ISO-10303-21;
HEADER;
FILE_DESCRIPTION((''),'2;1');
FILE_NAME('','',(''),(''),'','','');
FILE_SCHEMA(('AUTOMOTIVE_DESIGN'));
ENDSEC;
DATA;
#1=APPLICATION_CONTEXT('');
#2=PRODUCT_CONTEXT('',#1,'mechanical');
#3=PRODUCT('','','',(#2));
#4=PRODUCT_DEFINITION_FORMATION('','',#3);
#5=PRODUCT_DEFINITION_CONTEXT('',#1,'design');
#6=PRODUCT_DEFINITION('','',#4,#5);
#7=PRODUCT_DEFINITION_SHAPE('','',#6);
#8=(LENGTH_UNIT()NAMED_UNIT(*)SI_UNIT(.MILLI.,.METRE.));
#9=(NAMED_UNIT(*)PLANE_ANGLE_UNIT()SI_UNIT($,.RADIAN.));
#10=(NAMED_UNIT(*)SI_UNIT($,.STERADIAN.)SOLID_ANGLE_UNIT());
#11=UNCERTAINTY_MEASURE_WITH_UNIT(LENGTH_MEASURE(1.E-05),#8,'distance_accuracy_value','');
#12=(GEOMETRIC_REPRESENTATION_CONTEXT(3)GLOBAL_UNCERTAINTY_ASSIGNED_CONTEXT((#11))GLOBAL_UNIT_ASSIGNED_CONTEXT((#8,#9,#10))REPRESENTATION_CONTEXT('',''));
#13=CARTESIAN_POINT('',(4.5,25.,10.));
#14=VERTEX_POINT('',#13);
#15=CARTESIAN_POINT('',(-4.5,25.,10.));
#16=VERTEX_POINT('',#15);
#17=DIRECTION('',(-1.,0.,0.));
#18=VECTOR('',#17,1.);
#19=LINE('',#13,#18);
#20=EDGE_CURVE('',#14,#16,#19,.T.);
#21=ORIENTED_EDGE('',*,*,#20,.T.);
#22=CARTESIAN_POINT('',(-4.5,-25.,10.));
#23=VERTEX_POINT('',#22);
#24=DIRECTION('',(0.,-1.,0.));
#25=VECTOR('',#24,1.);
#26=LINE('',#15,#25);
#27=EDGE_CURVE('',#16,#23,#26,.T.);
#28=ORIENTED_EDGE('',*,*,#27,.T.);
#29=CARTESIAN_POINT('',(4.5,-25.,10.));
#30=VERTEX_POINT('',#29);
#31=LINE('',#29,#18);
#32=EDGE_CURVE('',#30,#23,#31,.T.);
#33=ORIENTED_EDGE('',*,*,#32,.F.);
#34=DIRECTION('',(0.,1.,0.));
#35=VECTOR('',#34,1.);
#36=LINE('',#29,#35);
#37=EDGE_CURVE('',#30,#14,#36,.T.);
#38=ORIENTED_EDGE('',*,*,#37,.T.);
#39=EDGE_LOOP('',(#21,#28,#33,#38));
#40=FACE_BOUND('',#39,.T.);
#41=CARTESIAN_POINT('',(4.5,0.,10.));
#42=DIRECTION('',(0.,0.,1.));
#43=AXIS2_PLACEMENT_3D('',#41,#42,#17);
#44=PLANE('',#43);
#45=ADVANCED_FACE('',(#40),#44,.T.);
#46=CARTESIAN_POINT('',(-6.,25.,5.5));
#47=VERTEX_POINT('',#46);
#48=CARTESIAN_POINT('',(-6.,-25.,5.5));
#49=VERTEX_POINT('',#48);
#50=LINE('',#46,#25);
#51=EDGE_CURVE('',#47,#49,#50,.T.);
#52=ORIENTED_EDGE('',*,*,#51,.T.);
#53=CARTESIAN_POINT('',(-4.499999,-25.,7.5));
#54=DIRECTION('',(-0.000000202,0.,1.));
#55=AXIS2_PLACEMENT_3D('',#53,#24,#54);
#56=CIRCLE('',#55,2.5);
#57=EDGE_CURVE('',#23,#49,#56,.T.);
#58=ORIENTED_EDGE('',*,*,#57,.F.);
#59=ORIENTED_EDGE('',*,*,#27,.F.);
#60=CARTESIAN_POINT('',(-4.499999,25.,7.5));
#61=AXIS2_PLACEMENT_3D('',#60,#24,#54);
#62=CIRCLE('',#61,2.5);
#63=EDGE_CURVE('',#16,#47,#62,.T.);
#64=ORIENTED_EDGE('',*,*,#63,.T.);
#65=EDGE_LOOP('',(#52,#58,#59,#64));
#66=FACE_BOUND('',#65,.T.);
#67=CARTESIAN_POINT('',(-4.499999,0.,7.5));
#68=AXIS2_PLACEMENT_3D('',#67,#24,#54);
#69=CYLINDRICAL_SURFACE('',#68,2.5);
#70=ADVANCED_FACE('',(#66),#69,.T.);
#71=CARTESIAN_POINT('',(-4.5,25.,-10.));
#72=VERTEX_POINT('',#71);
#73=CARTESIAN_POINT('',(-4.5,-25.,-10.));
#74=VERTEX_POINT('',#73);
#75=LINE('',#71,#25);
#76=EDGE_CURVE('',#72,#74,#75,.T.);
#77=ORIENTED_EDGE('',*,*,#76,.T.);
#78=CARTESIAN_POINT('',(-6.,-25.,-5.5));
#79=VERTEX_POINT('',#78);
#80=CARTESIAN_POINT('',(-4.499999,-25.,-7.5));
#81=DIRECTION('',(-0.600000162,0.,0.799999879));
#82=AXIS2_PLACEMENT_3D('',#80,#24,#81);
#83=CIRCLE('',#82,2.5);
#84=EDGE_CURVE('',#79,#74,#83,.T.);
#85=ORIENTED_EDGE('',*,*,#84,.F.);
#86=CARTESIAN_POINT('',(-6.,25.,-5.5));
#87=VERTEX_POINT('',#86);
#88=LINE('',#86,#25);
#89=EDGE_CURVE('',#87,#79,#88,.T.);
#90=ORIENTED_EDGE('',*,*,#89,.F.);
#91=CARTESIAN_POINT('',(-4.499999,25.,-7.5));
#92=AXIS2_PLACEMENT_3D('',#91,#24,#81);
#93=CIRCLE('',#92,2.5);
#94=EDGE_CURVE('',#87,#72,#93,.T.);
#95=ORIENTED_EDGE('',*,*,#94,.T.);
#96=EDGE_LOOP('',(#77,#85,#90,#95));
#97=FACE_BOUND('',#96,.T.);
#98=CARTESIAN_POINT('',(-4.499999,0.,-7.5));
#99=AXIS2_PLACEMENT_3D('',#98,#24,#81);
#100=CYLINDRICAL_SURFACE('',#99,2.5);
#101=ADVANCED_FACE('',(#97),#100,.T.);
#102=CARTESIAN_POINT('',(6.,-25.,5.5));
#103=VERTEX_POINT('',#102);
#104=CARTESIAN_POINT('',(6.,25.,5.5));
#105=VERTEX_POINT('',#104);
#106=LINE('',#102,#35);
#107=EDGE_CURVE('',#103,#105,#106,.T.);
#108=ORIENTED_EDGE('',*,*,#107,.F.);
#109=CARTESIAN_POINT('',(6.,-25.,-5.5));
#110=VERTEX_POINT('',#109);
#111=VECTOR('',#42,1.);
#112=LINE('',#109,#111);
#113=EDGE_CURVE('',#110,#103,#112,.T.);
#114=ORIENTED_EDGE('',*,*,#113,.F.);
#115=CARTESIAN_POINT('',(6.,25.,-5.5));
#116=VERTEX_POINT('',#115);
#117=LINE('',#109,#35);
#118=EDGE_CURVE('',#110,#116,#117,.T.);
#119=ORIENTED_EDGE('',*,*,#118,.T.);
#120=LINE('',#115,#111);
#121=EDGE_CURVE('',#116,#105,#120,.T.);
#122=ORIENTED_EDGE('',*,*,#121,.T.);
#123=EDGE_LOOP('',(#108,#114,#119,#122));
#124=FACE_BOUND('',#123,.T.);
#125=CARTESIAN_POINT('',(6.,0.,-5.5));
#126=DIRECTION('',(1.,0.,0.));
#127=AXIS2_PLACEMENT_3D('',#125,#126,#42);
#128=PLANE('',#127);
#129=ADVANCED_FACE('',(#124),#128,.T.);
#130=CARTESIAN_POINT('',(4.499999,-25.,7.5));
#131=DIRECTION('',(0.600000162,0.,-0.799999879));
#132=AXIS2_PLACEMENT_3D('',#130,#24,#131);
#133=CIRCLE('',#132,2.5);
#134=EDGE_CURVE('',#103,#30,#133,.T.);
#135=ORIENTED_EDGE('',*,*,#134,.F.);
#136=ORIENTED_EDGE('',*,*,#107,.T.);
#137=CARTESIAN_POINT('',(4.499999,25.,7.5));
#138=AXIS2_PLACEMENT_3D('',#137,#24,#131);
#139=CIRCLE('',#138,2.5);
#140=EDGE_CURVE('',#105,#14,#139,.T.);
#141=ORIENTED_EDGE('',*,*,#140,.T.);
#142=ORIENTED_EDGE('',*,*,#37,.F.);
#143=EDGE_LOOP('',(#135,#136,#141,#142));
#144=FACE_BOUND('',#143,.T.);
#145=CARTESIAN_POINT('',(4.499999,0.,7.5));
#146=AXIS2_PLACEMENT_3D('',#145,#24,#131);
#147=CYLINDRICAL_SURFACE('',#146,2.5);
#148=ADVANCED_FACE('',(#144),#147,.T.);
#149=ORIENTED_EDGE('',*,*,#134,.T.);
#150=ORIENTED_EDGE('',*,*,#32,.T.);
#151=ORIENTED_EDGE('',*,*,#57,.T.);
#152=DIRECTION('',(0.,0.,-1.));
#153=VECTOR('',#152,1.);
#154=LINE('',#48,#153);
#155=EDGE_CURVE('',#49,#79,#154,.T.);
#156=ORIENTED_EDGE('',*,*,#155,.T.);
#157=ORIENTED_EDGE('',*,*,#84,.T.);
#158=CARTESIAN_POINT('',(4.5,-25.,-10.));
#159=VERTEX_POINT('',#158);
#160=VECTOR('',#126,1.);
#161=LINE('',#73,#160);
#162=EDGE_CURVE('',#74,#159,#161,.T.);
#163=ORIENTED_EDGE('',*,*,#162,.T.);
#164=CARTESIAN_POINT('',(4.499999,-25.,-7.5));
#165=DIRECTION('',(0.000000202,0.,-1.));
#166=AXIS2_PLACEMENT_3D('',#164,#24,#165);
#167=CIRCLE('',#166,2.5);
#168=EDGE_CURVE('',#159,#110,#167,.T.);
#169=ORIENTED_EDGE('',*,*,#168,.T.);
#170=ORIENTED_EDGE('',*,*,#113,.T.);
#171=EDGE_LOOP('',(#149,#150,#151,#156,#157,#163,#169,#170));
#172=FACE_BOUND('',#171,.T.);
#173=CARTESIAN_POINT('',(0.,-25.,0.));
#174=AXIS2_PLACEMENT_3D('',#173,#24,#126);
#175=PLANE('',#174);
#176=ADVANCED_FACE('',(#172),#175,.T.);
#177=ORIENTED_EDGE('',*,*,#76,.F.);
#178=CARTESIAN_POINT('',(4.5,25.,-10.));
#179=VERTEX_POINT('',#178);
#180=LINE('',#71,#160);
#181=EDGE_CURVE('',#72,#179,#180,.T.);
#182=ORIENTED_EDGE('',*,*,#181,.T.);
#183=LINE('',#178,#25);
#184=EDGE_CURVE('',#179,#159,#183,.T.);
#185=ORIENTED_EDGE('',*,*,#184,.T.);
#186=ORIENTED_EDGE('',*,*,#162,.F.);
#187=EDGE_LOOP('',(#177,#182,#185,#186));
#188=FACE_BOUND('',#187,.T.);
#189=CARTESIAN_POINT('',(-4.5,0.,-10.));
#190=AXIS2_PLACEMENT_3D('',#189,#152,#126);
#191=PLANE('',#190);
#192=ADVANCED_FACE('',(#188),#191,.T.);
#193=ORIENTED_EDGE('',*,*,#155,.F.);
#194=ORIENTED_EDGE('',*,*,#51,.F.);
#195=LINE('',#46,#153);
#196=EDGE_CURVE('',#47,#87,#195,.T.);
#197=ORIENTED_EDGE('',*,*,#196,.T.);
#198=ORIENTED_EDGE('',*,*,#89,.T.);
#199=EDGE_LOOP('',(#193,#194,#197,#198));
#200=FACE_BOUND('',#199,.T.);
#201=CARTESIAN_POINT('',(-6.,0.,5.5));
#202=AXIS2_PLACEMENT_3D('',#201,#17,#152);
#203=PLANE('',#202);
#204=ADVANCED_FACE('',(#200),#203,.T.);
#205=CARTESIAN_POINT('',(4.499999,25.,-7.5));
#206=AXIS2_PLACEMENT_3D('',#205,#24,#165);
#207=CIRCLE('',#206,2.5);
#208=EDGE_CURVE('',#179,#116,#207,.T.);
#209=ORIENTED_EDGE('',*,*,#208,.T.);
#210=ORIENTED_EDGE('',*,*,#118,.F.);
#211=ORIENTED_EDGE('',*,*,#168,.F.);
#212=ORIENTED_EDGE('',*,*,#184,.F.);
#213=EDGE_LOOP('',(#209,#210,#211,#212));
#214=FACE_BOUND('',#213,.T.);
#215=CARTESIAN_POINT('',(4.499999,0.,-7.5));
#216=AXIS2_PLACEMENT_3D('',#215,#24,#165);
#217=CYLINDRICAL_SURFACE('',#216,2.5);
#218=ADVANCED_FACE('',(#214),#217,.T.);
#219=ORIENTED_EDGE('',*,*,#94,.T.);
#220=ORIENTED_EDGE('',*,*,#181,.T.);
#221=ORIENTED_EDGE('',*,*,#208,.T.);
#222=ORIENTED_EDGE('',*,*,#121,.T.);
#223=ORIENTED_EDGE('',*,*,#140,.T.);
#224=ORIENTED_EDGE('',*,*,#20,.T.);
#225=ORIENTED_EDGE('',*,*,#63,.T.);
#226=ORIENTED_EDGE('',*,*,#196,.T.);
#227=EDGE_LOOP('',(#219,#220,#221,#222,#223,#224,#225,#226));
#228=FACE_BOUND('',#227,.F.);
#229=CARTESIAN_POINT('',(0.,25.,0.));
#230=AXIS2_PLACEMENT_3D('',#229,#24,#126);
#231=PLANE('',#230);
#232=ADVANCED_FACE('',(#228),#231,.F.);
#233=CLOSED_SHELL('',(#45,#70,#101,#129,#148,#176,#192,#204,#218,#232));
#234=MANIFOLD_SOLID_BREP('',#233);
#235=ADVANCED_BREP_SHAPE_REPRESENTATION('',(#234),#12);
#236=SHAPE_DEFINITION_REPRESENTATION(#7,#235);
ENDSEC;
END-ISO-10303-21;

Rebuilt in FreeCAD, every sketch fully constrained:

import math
import FreeCAD as App
import Part
import Sketcher
from FreeCAD import Vector
Q = App.Units.Quantity

doc = App.newDocument("Part")
body = doc.addObject("PartDesign::Body", "Body")

# Sketch on XZ plane
sketch1 = body.newObject("Sketcher::SketchObject", "Sketch")
sketch1.AttachmentSupport = (doc.getObject("XZ_Plane"), [""])
sketch1.MapMode = "FlatFace"
sketch1.addGeometry([
    Part.LineSegment(Vector(4.5, 10, 0), Vector(-4.5, 10, 0)),  # 0
    Part.ArcOfCircle(Part.Circle(Vector(-4.5, 7.5, 0), Vector(0, 0, 1), 2.5), math.radians(90), math.radians(233)),  # 1
    Part.LineSegment(Vector(-6, 5.5, 0), Vector(-6, -5.5, 0)),  # 2
    Part.ArcOfCircle(Part.Circle(Vector(-4.5, -7.5, 0), Vector(0, 0, 1), 2.5), math.radians(127), math.radians(270)),  # 3
    Part.LineSegment(Vector(-4.5, -10, 0), Vector(4.5, -10, 0)),  # 4
    Part.ArcOfCircle(Part.Circle(Vector(4.5, -7.5, 0), Vector(0, 0, 1), 2.5), math.radians(-90), math.radians(53)),  # 5
    Part.LineSegment(Vector(6, -5.5, 0), Vector(6, 5.5, 0)),  # 6
    Part.ArcOfCircle(Part.Circle(Vector(4.5, 7.5, 0), Vector(0, 0, 1), 2.5), math.radians(-53), math.radians(90)),  # 7
], False)
sketch1.addConstraint([
    Sketcher.Constraint("Tangent", 0, 2, 1, 1),
    Sketcher.Constraint("Coincident", 1, 2, 2, 1),
    Sketcher.Constraint("Coincident", 2, 2, 3, 1),
    Sketcher.Constraint("Tangent", 3, 2, 4, 1),
    Sketcher.Constraint("Tangent", 4, 2, 5, 1),
    Sketcher.Constraint("Coincident", 5, 2, 6, 1),
    Sketcher.Constraint("Coincident", 6, 2, 7, 1),
    Sketcher.Constraint("Tangent", 7, 2, 0, 1),
    Sketcher.Constraint("Horizontal", 0),
    Sketcher.Constraint("Vertical", 2),
    Sketcher.Constraint("Horizontal", 4),
    Sketcher.Constraint("Vertical", 6),
    Sketcher.Constraint("Equal", 1, 3),
    Sketcher.Constraint("Equal", 3, 5),
    Sketcher.Constraint("Equal", 5, 7),
    Sketcher.Constraint("Symmetric", 1, 3, 5, 3, -1, 1),
    Sketcher.Constraint("Symmetric", 2, 2, 6, 2, -1, 1),
    Sketcher.Constraint("Horizontal", 2, 2, 5, 2),
    Sketcher.Constraint("Radius", 1, Q("2.5 mm")),
    Sketcher.Constraint("DistanceX", 0, 2, 0, 1, Q("9 mm")),
    Sketcher.Constraint("DistanceY", 2, 2, 2, 1, Q("11 mm")),
    Sketcher.Constraint("DistanceY", -1, 1, 0, 2, Q("10 mm")),
])
pad1 = body.newObject("PartDesign::Pad", "Pad")
pad1.Profile = sketch1
pad1.Length = 50
pad1.Midplane = True

doc.recompute()
